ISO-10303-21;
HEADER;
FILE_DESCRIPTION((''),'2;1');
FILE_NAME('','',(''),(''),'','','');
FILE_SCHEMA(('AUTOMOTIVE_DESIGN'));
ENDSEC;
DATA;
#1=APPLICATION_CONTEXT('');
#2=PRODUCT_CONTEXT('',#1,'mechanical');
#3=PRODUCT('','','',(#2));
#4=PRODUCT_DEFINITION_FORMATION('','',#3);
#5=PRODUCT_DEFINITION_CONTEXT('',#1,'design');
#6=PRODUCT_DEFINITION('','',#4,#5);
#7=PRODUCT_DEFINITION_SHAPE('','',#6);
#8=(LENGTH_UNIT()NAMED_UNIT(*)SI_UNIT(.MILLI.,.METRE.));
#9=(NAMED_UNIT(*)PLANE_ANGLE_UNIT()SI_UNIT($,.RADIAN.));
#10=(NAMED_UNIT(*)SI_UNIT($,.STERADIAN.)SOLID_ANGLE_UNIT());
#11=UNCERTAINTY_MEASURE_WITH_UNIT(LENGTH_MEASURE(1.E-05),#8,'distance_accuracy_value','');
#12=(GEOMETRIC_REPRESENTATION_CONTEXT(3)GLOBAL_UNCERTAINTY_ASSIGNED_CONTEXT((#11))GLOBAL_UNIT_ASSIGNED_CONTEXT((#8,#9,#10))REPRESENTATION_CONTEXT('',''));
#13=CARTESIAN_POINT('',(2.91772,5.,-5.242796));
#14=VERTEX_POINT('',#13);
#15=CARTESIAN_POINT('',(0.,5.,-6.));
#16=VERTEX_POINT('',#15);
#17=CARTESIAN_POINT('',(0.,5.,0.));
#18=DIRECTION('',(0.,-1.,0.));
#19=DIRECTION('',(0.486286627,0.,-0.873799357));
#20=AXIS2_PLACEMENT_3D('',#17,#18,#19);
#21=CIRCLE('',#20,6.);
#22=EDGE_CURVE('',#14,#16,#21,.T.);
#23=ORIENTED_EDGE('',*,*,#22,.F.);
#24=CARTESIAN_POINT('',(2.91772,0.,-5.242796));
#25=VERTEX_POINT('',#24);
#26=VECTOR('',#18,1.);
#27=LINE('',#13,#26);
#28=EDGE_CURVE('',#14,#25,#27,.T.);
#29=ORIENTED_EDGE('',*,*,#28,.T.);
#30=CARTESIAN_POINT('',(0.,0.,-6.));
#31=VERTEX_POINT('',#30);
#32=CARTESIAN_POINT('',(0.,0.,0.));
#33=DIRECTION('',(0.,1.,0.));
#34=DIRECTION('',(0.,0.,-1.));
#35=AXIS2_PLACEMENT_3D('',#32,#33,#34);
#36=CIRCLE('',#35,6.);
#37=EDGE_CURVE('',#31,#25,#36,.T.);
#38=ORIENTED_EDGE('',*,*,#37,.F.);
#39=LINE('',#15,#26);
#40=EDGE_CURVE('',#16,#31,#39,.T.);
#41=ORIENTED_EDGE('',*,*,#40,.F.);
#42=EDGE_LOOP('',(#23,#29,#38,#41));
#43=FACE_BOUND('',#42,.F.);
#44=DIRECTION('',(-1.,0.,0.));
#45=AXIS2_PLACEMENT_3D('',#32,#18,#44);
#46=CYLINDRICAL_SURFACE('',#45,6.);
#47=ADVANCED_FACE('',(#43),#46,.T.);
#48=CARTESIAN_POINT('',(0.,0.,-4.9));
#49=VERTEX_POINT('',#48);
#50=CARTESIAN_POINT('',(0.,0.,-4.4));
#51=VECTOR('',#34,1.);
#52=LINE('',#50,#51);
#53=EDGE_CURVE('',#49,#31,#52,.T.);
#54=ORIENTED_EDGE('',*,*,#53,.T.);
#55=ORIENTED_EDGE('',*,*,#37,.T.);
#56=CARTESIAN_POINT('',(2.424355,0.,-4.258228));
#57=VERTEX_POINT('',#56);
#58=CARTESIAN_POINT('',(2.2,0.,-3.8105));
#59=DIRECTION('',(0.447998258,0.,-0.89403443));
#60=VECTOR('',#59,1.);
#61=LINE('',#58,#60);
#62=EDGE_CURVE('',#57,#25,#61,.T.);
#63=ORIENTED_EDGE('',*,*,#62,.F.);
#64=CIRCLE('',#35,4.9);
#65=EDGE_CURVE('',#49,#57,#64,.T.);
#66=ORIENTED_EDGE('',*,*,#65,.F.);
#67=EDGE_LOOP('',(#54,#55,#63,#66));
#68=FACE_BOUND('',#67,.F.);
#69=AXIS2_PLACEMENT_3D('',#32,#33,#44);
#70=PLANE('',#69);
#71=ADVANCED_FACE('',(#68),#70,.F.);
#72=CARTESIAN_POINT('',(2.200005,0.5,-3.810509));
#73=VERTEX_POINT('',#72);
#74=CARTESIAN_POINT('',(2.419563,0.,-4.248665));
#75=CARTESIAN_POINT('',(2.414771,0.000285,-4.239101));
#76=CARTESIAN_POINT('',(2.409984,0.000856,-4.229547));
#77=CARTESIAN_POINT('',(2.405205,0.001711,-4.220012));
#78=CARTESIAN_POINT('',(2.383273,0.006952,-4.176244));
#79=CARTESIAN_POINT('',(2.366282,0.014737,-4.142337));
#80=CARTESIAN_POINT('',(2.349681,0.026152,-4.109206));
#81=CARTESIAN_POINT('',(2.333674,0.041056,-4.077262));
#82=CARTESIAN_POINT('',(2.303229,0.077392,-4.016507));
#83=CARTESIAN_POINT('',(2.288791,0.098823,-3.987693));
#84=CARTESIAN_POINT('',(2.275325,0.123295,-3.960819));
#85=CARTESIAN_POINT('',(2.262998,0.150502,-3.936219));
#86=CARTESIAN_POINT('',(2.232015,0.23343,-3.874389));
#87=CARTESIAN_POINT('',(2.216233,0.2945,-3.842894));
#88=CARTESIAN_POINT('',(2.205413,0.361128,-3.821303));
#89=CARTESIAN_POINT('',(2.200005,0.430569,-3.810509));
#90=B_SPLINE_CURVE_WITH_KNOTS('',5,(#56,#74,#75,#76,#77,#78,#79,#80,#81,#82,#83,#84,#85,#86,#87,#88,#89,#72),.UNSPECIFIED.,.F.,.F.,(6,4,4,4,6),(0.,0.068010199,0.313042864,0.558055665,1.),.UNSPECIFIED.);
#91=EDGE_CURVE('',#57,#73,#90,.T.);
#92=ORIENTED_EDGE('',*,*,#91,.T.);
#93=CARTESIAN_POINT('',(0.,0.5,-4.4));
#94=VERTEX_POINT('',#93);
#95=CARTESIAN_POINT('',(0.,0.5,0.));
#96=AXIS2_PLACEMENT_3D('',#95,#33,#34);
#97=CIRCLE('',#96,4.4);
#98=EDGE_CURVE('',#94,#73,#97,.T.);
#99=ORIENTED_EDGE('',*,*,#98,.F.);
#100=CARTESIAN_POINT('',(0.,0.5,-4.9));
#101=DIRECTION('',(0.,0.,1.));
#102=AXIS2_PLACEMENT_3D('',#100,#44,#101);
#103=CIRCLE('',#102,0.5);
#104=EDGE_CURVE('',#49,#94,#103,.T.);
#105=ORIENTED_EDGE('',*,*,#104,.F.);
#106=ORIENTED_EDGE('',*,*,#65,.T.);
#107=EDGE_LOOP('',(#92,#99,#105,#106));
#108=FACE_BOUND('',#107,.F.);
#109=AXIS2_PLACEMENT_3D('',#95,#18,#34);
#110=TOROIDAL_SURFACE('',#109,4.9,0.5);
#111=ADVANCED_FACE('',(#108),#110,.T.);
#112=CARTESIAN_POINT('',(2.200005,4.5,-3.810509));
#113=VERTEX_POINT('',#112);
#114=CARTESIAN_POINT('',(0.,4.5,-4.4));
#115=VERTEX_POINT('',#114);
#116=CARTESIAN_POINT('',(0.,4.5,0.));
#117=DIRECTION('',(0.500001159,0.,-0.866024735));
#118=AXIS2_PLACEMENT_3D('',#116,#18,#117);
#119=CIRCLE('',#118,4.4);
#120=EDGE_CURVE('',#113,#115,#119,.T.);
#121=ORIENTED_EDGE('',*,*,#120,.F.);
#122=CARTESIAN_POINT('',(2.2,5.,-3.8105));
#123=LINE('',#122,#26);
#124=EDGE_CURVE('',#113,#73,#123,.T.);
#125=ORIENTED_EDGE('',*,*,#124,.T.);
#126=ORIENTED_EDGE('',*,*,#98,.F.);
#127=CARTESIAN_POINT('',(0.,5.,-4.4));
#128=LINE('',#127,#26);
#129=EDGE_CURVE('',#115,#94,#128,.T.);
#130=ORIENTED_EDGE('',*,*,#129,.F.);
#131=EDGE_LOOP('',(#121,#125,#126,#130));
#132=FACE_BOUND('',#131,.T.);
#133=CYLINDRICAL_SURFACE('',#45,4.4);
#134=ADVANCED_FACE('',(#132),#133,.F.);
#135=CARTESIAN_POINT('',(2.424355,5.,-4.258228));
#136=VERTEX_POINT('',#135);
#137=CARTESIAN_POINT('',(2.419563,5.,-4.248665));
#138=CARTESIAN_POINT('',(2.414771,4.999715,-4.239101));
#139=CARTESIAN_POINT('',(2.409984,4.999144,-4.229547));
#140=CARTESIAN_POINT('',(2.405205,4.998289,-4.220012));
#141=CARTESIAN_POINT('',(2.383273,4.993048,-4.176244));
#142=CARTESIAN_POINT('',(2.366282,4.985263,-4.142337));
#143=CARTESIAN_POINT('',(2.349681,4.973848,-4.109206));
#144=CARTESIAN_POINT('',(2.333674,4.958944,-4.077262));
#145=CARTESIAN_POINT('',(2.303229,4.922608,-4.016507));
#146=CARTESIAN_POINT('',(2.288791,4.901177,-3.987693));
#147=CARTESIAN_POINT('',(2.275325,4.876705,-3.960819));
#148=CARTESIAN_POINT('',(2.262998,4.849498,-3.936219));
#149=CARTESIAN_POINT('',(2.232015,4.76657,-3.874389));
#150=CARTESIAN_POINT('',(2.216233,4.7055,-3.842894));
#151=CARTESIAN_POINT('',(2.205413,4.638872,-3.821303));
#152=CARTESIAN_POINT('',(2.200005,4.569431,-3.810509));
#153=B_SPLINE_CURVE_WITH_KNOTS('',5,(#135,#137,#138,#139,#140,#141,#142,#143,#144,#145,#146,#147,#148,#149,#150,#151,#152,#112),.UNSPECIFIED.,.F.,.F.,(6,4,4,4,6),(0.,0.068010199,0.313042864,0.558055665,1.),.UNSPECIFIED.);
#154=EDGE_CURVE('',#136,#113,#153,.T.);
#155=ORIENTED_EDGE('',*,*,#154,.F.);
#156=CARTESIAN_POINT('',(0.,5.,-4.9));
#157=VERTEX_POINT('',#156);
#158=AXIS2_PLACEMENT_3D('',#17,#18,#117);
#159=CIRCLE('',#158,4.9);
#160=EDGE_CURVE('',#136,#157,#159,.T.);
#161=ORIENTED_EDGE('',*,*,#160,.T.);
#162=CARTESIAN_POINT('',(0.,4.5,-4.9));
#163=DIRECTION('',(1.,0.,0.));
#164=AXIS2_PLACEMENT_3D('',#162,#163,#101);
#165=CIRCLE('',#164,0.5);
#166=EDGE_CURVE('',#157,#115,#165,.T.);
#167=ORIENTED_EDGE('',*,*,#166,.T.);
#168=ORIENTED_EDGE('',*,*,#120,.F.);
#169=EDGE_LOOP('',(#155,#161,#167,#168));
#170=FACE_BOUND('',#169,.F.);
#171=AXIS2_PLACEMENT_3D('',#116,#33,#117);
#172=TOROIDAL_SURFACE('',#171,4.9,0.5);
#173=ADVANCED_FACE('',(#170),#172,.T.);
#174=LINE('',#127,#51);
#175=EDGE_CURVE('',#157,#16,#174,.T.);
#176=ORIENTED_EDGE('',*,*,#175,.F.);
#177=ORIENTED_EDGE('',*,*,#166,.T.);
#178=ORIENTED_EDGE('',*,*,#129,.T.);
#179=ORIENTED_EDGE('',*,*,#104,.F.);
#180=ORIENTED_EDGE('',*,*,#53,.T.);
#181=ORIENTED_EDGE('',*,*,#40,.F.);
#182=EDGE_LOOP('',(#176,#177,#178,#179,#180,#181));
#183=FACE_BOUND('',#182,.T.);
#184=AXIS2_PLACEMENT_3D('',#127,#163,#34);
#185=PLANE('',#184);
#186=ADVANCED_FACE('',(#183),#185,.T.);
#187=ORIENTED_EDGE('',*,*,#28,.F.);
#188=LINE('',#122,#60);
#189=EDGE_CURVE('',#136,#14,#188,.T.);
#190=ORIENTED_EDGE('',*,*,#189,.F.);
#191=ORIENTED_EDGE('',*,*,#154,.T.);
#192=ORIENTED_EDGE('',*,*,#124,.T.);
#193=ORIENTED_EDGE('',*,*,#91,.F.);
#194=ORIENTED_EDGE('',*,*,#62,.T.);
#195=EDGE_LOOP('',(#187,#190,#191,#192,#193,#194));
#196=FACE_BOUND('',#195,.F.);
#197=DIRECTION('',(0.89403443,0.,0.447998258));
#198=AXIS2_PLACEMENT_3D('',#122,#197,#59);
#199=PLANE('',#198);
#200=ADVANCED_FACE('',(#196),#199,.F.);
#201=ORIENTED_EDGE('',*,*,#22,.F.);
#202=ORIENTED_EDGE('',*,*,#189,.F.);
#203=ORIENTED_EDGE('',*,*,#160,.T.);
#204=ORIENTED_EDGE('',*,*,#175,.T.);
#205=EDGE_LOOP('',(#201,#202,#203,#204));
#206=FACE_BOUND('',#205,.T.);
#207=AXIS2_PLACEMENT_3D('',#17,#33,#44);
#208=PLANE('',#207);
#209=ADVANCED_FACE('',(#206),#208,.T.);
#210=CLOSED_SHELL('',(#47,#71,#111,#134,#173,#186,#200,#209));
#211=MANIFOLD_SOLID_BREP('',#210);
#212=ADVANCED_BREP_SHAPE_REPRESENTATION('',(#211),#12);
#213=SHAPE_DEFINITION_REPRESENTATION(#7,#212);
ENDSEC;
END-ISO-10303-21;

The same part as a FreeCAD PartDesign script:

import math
import FreeCAD as App
import Part
import Sketcher
from FreeCAD import Vector


def edges_at(feature, points):
    """Names of the edges that pass closest to the given points."""
    edges = feature.Shape.Edges
    near = lambda p: min(range(len(edges)), key=lambda i: edges[i].distToShape(Part.Vertex(*p))[0])
    return sorted({f"Edge{near(p) + 1}" for p in points})

doc = App.newDocument("Part")
params = doc.addObject("Spreadsheet::Sheet", "Params")
for row, (alias, value) in enumerate([
    ("sketch1_diameter", "12 mm"),
    ("sketch1_diameter2", "8.8 mm"),
    ("pad1_length", "5 mm"),
    ("sketch2_radius", "6 mm"),
    ("sketch2_radius2", "4.4 mm"),
    ("pocket1_length", "5 mm"),
    ("fillet_radius", "0.5 mm"),
], start=1):
    params.set(f"A{row}", alias)
    params.set(f"B{row}", "=" + value)
    params.setAlias(f"B{row}", alias)

body = doc.addObject("PartDesign::Body", "Body")

# Sketch on XZ plane
sketch1 = body.newObject("Sketcher::SketchObject", "Sketch")
sketch1.AttachmentSupport = (doc.getObject("XZ_Plane"), [""])
sketch1.MapMode = "FlatFace"
sketch1.addGeometry([
    Part.Circle(Vector(0, 0, 0), Vector(0, 0, 1), 6),
    Part.Circle(Vector(0, 0, 0), Vector(0, 0, 1), 4.4),
], False)
sketch1.addConstraint([
    Sketcher.Constraint("Coincident", 0, 3, -1, 1),
    Sketcher.Constraint("Coincident", 1, 3, -1, 1),
    Sketcher.Constraint("Diameter", 0, 12.0),
    Sketcher.Constraint("Diameter", 1, 8.8),
])
sketch1.setExpression("Constraints[2]", "Params.sketch1_diameter")
sketch1.setExpression("Constraints[3]", "Params.sketch1_diameter2")
pad1 = body.newObject("PartDesign::Pad", "Pad")
pad1.Profile = sketch1
pad1.setExpression("Length", "Params.pad1_length")
pad1.Reversed = True

# Sketch on XZ plane
sketch2 = body.newObject("Sketcher::SketchObject", "Sketch001")
sketch2.AttachmentSupport = (doc.getObject("XZ_Plane"), [""])
sketch2.MapMode = "FlatFace"
sketch2.AttachmentOffset = App.Placement(Vector(0, 0, -5), App.Rotation())
sketch2.addGeometry([
    Part.ArcOfCircle(Part.Circle(Vector(0, 0, 0), Vector(0, 0, 1), 4.4), math.radians(-90), math.radians(-59.999923)),
    Part.LineSegment(Vector(2.2, -3.8105, 0), Vector(2.91772, -5.242796, 0)),
    Part.ArcOfCircle(Part.Circle(Vector(0, 0, 0), Vector(0, 0, 1), 6), math.radians(-90), math.radians(-60.903197)),
    Part.LineSegment(Vector(0, -6, 0), Vector(0, -4.4, 0)),
], False)
sketch2.addConstraint([
    Sketcher.Constraint("Coincident", 0, 2, 1, 1),
    Sketcher.Constraint("Coincident", 1, 2, 2, 2),
    Sketcher.Constraint("Coincident", 2, 1, 3, 1),
    Sketcher.Constraint("Coincident", 3, 2, 0, 1),
    Sketcher.Constraint("Vertical", 3),
    Sketcher.Constraint("Coincident", 0, 3, -1, 1),
    Sketcher.Constraint("Coincident", 2, 3, -1, 1),
    Sketcher.Constraint("PointOnObject", 2, 1, -2),
    Sketcher.Constraint("Radius", 2, 6.0),
    Sketcher.Constraint("Radius", 0, 4.4),
    Sketcher.Constraint("DistanceX", -1, 1, 0, 2, 2.2),
    Sketcher.Constraint("Distance", 1, 1.602),
])
sketch2.setExpression("Constraints[8]", "Params.sketch2_radius")
sketch2.setExpression("Constraints[9]", "Params.sketch2_radius2")
pocket1 = body.newObject("PartDesign::Pocket", "Pocket")
pocket1.Profile = sketch2
pocket1.setExpression("Length", "Params.pocket1_length")
pocket1.Reversed = True
doc.recompute()

fillet = body.newObject("PartDesign::Fillet", "Fillet")
fillet.Base = (pocket1, edges_at(pocket1, [(-1.139, 0, 4.25), (-1.139, 5, 4.25)]))
fillet.setExpression("Radius", "Params.fillet_radius")

doc.recompute()
